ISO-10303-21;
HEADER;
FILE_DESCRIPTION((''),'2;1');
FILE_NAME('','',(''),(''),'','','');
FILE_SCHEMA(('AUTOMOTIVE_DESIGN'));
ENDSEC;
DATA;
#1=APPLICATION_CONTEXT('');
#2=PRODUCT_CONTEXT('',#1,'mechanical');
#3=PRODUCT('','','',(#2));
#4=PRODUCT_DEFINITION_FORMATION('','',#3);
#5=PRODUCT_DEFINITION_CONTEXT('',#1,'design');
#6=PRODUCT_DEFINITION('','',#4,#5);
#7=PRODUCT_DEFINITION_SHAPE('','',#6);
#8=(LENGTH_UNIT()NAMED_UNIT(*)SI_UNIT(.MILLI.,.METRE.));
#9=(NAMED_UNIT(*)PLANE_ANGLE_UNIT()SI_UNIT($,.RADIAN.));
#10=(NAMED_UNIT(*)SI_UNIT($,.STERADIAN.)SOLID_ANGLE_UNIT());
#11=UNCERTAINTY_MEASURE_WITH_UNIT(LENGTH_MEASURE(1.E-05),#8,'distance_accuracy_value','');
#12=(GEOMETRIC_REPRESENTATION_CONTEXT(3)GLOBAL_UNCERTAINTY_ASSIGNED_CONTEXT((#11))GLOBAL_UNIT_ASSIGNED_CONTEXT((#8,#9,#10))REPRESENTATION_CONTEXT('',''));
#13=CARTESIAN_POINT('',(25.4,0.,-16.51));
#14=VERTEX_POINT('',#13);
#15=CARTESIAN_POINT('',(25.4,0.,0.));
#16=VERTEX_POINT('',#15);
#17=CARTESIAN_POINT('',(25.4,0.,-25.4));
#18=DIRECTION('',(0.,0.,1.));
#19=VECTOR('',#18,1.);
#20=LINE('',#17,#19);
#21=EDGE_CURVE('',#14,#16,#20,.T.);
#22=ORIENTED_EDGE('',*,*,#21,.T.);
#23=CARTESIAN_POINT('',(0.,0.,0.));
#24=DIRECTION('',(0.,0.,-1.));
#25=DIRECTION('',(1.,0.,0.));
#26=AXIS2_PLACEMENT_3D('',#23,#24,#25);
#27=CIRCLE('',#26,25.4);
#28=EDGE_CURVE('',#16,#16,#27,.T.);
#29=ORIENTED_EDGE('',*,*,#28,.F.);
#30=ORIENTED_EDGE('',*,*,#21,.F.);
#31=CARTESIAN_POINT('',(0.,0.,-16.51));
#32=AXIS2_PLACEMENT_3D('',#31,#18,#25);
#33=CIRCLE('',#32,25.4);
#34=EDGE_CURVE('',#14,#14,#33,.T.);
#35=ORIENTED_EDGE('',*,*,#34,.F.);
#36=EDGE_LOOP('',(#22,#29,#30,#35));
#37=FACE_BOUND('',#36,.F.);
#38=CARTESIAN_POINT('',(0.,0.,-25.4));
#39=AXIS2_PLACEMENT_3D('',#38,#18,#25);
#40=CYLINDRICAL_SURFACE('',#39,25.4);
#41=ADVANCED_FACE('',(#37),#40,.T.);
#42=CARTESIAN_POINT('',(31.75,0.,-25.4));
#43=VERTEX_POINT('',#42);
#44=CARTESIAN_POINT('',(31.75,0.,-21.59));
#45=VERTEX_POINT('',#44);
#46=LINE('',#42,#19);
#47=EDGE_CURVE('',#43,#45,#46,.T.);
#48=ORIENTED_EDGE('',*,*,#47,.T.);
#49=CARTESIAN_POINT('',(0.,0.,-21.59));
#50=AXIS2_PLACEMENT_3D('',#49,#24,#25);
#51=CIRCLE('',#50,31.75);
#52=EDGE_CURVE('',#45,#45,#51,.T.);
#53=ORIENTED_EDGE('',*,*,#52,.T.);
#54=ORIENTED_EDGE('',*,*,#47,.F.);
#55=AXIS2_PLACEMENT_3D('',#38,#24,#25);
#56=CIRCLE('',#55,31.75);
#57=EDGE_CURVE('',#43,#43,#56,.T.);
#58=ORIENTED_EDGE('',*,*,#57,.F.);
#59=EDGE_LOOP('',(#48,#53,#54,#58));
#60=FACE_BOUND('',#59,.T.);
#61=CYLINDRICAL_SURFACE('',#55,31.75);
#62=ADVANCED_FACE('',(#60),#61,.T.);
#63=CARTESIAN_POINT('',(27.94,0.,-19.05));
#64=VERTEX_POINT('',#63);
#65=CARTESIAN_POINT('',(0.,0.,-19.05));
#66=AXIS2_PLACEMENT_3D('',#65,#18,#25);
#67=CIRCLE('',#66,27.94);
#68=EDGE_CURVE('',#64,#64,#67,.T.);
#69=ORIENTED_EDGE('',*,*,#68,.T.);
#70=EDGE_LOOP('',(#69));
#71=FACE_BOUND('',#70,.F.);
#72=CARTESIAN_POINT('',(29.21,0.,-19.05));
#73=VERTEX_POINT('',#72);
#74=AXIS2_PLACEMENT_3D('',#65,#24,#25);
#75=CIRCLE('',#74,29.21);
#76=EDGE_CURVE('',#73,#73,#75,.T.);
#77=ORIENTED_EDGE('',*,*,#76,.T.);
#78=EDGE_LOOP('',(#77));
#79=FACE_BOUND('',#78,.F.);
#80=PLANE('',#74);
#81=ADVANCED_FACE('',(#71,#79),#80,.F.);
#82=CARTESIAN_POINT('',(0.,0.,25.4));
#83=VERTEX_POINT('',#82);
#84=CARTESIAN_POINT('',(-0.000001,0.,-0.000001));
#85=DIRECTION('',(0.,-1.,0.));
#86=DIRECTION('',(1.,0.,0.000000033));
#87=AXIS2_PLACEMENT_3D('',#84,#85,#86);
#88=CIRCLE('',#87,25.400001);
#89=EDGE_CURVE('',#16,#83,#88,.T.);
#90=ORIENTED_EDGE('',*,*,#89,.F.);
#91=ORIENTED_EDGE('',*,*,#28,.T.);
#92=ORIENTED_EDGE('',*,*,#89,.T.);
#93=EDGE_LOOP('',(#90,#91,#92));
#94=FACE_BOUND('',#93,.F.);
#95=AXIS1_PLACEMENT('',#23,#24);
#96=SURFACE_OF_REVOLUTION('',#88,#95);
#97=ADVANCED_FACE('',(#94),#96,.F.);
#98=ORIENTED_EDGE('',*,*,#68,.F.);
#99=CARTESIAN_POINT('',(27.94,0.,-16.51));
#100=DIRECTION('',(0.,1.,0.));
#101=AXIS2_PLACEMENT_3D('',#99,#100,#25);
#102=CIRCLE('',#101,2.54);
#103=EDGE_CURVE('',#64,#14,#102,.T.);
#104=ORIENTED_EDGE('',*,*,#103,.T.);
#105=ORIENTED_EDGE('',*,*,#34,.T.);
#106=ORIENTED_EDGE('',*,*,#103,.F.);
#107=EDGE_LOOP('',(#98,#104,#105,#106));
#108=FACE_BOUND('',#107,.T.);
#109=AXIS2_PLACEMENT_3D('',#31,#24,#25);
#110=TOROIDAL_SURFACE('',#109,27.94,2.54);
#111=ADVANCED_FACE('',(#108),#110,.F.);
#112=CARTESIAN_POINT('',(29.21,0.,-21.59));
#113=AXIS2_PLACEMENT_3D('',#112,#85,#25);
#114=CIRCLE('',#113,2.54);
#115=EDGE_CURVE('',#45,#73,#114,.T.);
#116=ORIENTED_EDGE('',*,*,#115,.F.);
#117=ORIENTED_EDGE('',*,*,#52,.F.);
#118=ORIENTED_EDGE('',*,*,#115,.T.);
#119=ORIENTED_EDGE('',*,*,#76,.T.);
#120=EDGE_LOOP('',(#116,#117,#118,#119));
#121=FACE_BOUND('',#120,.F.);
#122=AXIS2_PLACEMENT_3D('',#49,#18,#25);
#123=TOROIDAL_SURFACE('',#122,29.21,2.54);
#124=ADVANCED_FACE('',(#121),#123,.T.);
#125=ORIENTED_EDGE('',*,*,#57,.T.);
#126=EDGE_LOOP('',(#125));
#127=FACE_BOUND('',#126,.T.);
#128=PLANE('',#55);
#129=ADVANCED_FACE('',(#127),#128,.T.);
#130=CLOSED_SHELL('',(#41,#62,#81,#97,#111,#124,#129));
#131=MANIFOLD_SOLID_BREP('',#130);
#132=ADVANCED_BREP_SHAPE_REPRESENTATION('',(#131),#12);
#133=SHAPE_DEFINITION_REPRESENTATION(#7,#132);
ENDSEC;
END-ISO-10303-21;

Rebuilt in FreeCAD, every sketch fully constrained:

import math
import FreeCAD as App
import Part
import Sketcher
from FreeCAD import Vector
Q = App.Units.Quantity


def edges_at(feature, points):
    """Names of the edges that pass closest to the given points."""
    edges = feature.Shape.Edges
    near = lambda p: min(range(len(edges)), key=lambda i: edges[i].distToShape(Part.Vertex(*p))[0])
    return sorted({f"Edge{near(p) + 1}" for p in points})

doc = App.newDocument("Part")
body = doc.addObject("PartDesign::Body", "Body")

# Sketch on XZ plane
sketch1 = body.newObject("Sketcher::SketchObject", "Sketch")
sketch1.AttachmentSupport = (doc.getObject("XZ_Plane"), [""])
sketch1.MapMode = "FlatFace"
sketch1.addGeometry([
    Part.ArcOfCircle(Part.Circle(Vector(0, 0, 0), Vector(0, 0, 1), 25), math.radians(0), math.radians(90)),
    Part.LineSegment(Vector(0, 25, 0), Vector(0, -25, 0)),
    Part.LineSegment(Vector(0, -25, 0), Vector(25, -25, 0)),
    Part.LineSegment(Vector(25, -25, 0), Vector(25, 0, 0)),
], False)
sketch1.addConstraint([
    Sketcher.Constraint("Coincident", 0, 2, 1, 1),
    Sketcher.Constraint("Coincident", 1, 2, 2, 1),
    Sketcher.Constraint("Coincident", 2, 2, 3, 1),
    Sketcher.Constraint("Tangent", 3, 2, 0, 1),
    Sketcher.Constraint("Vertical", 1),
    Sketcher.Constraint("Horizontal", 2),
    Sketcher.Constraint("Vertical", 3),
    Sketcher.Constraint("Coincident", 0, 3, -1, 1),
    Sketcher.Constraint("Symmetric", 0, 2, 1, 2, -1, 1),
    Sketcher.Constraint("Radius", 0, Q("1 in")),
])
revolution = body.newObject("PartDesign::Revolution", "Revolution")
revolution.Profile = sketch1
revolution.ReferenceAxis = (sketch1, ["V_Axis"])
revolution.Angle = 360

# Sketch on XY plane
sketch2 = body.newObject("Sketcher::SketchObject", "Sketch001")
sketch2.AttachmentSupport = (doc.getObject("XY_Plane"), [""])
sketch2.MapMode = "FlatFace"
sketch2.AttachmentOffset = App.Placement(Vector(0, 0, -1 * 25.4), App.Rotation())
sketch2.addGeometry(Part.Circle(Vector(0, 0, 0), Vector(0, 0, 1), 32), False)
sketch2.addConstraint([
    Sketcher.Constraint("Coincident", 0, 3, -1, 1),
    Sketcher.Constraint("Diameter", 0, Q("2.5 in")),
])
pad1 = body.newObject("PartDesign::Pad", "Pad")
pad1.Profile = sketch2
pad1.Length = Q("0.25 in")
doc.recompute()

fillet = body.newObject("PartDesign::Fillet", "Fillet")
fillet.Base = (pad1, edges_at(pad1, [(-25.4, 0, -19.05), (-31.75, 0, -19.05), (-25.4, 0, 0)]))
fillet.Radius = Q("0.1 in")

doc.recompute()
